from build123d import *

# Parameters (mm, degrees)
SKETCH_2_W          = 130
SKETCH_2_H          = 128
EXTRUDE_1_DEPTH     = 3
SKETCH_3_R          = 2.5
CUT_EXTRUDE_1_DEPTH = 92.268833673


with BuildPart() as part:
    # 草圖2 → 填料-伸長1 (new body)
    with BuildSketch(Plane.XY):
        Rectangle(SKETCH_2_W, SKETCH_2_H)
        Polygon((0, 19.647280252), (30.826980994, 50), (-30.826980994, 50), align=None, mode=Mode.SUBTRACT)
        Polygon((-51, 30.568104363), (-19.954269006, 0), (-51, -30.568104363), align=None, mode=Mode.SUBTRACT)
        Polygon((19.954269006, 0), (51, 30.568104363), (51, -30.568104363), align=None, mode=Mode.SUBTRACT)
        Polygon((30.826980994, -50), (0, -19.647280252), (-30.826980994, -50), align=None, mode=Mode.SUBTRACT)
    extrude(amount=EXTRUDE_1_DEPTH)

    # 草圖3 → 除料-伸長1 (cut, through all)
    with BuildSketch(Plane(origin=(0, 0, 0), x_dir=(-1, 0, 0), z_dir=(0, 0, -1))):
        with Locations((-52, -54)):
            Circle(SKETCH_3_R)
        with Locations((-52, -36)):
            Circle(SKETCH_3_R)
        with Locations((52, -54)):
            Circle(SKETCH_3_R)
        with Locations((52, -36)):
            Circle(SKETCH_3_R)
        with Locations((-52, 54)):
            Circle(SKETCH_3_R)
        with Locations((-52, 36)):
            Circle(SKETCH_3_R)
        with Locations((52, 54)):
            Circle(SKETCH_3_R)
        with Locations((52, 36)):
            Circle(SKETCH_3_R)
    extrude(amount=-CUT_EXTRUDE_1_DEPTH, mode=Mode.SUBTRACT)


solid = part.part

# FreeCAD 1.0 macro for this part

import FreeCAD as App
import Part
import Sketcher

doc = App.newDocument("Part")
body = doc.addObject("PartDesign::Body", "Body")

# Sketch on XY plane
sketch1 = doc.addObject("Sketcher::SketchObject", "Sketch")
body.addObject(sketch1)
sketch1.AttachmentSupport = (doc.XY_Plane, [""])
sketch1.MapMode = "FlatFace"
sketch1.addGeometry([
    Part.LineSegment(App.Vector(-65, 64, 0), App.Vector(-65, -64, 0)),  # 0
    Part.LineSegment(App.Vector(-65, -64, 0), App.Vector(65, -64, 0)),  # 1
    Part.LineSegment(App.Vector(65, -64, 0), App.Vector(65, 64, 0)),  # 2
    Part.LineSegment(App.Vector(65, 64, 0), App.Vector(-65, 64, 0)),  # 3
    Part.LineSegment(App.Vector(0, -20, 0), App.Vector(31, -50, 0)),  # 4
    Part.LineSegment(App.Vector(31, -50, 0), App.Vector(-31, -50, 0)),  # 5
    Part.LineSegment(App.Vector(-31, -50, 0), App.Vector(0, -20, 0)),  # 6
    Part.LineSegment(App.Vector(-51, -31, 0), App.Vector(-51, 31, 0)),  # 7
    Part.LineSegment(App.Vector(-51, 31, 0), App.Vector(-20, 0, 0)),  # 8
    Part.LineSegment(App.Vector(-20, 0, 0), App.Vector(-51, -31, 0)),  # 9
    Part.LineSegment(App.Vector(51, -31, 0), App.Vector(20, 0, 0)),  # 10
    Part.LineSegment(App.Vector(20, 0, 0), App.Vector(51, 31, 0)),  # 11
    Part.LineSegment(App.Vector(51, 31, 0), App.Vector(51, -31, 0)),  # 12
    Part.LineSegment(App.Vector(31, 50, 0), App.Vector(0, 20, 0)),  # 13
    Part.LineSegment(App.Vector(0, 20, 0), App.Vector(-31, 50, 0)),  # 14
    Part.LineSegment(App.Vector(-31, 50, 0), App.Vector(31, 50, 0)),  # 15
], False)
sketch1.addConstraint([
    Sketcher.Constraint("Coincident", 0, 2, 1, 1),
    Sketcher.Constraint("Coincident", 1, 2, 2, 1),
    Sketcher.Constraint("Coincident", 2, 2, 3, 1),
    Sketcher.Constraint("Coincident", 3, 2, 0, 1),
    Sketcher.Constraint("Coincident", 4, 2, 5, 1),
    Sketcher.Constraint("Coincident", 5, 2, 6, 1),
    Sketcher.Constraint("Coincident", 6, 2, 4, 1),
    Sketcher.Constraint("Coincident", 7, 2, 8, 1),
    Sketcher.Constraint("Coincident", 8, 2, 9, 1),
    Sketcher.Constraint("Coincident", 9, 2, 7, 1),
    Sketcher.Constraint("Coincident", 10, 2, 11, 1),
    Sketcher.Constraint("Coincident", 11, 2, 12, 1),
    Sketcher.Constraint("Coincident", 12, 2, 10, 1),
    Sketcher.Constraint("Coincident", 13, 2, 14, 1),
    Sketcher.Constraint("Coincident", 14, 2, 15, 1),
    Sketcher.Constraint("Coincident", 15, 2, 13, 1),
    Sketcher.Constraint("Vertical", 0),
    Sketcher.Constraint("Horizontal", 1),
    Sketcher.Constraint("Vertical", 2),
    Sketcher.Constraint("Horizontal", 3),
    Sketcher.Constraint("Horizontal", 5),
    Sketcher.Constraint("Vertical", 7),
    Sketcher.Constraint("Vertical", 12),
    Sketcher.Constraint("Horizontal", 15),
    Sketcher.Constraint("Symmetric", 0, 2, 2, 2, -1, 1),
    Sketcher.Constraint("Symmetric", 8, 2, 10, 2, -1, 1),
    Sketcher.Constraint("Symmetric", 9, 2, 11, 2, -1, 1),
    Sketcher.Constraint("Symmetric", 6, 2, 13, 2, -1, 1),
    Sketcher.Constraint("Symmetric", 4, 2, 14, 2, -1, 1),
    Sketcher.Constraint("PointOnObject", 6, 2, -2),
    Sketcher.Constraint("PointOnObject", 8, 2, -1),
    Sketcher.Constraint("Parallel", 4, 8),
    Sketcher.Constraint("Parallel", 6, 9),
    Sketcher.Constraint("Parallel", 8, 10),
    Sketcher.Constraint("Parallel", 11, 13),
    Sketcher.Constraint("Horizontal", 7, 2, 11, 2),
    Sketcher.Constraint("DistanceX", 1, 1, 1, 2, 130.0),
    Sketcher.Constraint("DistanceY", 0, 2, 0, 1, 128.0),
    Sketcher.Constraint("DistanceY", 4, 2, -1, 1, 50.0),
    Sketcher.Constraint("DistanceX", 7, 2, -1, 1, 51.0),
    Sketcher.Constraint("DistanceX", 5, 2, 5, 1, 61.653962),
    Sketcher.Constraint("DistanceY", 7, 1, 7, 2, 61.136209),
    Sketcher.Constraint("Distance", 4, 43.261881),
])
pad1 = doc.addObject("PartDesign::Pad", "Pad")
body.addObject(pad1)
pad1.Profile = sketch1
pad1.Length = 3

# Sketch on XY plane
sketch2 = doc.addObject("Sketcher::SketchObject", "Sketch001")
body.addObject(sketch2)
sketch2.AttachmentSupport = (doc.XY_Plane, [""])
sketch2.MapMode = "FlatFace"
sketch2.addGeometry([
    Part.Circle(App.Vector(52, -54, 0), App.Vector(0, 0, 1), 2.5),  # 0
    Part.Circle(App.Vector(52, -36, 0), App.Vector(0, 0, 1), 2.5),  # 1
    Part.Circle(App.Vector(-52, -54, 0), App.Vector(0, 0, 1), 2.5),  # 2
    Part.Circle(App.Vector(-52, -36, 0), App.Vector(0, 0, 1), 2.5),  # 3
    Part.Circle(App.Vector(52, 54, 0), App.Vector(0, 0, 1), 2.5),  # 4
    Part.Circle(App.Vector(52, 36, 0), App.Vector(0, 0, 1), 2.5),  # 5
    Part.Circle(App.Vector(-52, 54, 0), App.Vector(0, 0, 1), 2.5),  # 6
    Part.Circle(App.Vector(-52, 36, 0), App.Vector(0, 0, 1), 2.5),  # 7
], False)
sketch2.addConstraint([
    Sketcher.Constraint("Equal", 0, 1),
    Sketcher.Constraint("Equal", 1, 2),
    Sketcher.Constraint("Equal", 2, 3),
    Sketcher.Constraint("Equal", 3, 4),
    Sketcher.Constraint("Equal", 4, 5),
    Sketcher.Constraint("Equal", 5, 6),
    Sketcher.Constraint("Equal", 6, 7),
    Sketcher.Constraint("Symmetric", 2, 3, 4, 3, -1, 1),
    Sketcher.Constraint("Symmetric", 3, 3, 5, 3, -1, 1),
    Sketcher.Constraint("Symmetric", 0, 3, 6, 3, -1, 1),
    Sketcher.Constraint("Symmetric", 1, 3, 7, 3, -1, 1),
    Sketcher.Constraint("Symmetric", 0, 3, 2, 3, -2),
    Sketcher.Constraint("Symmetric", 1, 3, 3, 3, -2),
    Sketcher.Constraint("Vertical", 0, 3, 1, 3),
    Sketcher.Constraint("Diameter", 0, 5.0),
    Sketcher.Constraint("DistanceX", -1, 1, 0, 3, 52.0),
    Sketcher.Constraint("DistanceY", 0, 3, -1, 1, 54.0),
    Sketcher.Constraint("DistanceY", 1, 3, -1, 1, 36.0),
])
pocket1 = doc.addObject("PartDesign::Pocket", "Pocket")
body.addObject(pocket1)
pocket1.Profile = sketch2
pocket1.Type = "ThroughAll"
pocket1.Reversed = True

doc.recompute()
